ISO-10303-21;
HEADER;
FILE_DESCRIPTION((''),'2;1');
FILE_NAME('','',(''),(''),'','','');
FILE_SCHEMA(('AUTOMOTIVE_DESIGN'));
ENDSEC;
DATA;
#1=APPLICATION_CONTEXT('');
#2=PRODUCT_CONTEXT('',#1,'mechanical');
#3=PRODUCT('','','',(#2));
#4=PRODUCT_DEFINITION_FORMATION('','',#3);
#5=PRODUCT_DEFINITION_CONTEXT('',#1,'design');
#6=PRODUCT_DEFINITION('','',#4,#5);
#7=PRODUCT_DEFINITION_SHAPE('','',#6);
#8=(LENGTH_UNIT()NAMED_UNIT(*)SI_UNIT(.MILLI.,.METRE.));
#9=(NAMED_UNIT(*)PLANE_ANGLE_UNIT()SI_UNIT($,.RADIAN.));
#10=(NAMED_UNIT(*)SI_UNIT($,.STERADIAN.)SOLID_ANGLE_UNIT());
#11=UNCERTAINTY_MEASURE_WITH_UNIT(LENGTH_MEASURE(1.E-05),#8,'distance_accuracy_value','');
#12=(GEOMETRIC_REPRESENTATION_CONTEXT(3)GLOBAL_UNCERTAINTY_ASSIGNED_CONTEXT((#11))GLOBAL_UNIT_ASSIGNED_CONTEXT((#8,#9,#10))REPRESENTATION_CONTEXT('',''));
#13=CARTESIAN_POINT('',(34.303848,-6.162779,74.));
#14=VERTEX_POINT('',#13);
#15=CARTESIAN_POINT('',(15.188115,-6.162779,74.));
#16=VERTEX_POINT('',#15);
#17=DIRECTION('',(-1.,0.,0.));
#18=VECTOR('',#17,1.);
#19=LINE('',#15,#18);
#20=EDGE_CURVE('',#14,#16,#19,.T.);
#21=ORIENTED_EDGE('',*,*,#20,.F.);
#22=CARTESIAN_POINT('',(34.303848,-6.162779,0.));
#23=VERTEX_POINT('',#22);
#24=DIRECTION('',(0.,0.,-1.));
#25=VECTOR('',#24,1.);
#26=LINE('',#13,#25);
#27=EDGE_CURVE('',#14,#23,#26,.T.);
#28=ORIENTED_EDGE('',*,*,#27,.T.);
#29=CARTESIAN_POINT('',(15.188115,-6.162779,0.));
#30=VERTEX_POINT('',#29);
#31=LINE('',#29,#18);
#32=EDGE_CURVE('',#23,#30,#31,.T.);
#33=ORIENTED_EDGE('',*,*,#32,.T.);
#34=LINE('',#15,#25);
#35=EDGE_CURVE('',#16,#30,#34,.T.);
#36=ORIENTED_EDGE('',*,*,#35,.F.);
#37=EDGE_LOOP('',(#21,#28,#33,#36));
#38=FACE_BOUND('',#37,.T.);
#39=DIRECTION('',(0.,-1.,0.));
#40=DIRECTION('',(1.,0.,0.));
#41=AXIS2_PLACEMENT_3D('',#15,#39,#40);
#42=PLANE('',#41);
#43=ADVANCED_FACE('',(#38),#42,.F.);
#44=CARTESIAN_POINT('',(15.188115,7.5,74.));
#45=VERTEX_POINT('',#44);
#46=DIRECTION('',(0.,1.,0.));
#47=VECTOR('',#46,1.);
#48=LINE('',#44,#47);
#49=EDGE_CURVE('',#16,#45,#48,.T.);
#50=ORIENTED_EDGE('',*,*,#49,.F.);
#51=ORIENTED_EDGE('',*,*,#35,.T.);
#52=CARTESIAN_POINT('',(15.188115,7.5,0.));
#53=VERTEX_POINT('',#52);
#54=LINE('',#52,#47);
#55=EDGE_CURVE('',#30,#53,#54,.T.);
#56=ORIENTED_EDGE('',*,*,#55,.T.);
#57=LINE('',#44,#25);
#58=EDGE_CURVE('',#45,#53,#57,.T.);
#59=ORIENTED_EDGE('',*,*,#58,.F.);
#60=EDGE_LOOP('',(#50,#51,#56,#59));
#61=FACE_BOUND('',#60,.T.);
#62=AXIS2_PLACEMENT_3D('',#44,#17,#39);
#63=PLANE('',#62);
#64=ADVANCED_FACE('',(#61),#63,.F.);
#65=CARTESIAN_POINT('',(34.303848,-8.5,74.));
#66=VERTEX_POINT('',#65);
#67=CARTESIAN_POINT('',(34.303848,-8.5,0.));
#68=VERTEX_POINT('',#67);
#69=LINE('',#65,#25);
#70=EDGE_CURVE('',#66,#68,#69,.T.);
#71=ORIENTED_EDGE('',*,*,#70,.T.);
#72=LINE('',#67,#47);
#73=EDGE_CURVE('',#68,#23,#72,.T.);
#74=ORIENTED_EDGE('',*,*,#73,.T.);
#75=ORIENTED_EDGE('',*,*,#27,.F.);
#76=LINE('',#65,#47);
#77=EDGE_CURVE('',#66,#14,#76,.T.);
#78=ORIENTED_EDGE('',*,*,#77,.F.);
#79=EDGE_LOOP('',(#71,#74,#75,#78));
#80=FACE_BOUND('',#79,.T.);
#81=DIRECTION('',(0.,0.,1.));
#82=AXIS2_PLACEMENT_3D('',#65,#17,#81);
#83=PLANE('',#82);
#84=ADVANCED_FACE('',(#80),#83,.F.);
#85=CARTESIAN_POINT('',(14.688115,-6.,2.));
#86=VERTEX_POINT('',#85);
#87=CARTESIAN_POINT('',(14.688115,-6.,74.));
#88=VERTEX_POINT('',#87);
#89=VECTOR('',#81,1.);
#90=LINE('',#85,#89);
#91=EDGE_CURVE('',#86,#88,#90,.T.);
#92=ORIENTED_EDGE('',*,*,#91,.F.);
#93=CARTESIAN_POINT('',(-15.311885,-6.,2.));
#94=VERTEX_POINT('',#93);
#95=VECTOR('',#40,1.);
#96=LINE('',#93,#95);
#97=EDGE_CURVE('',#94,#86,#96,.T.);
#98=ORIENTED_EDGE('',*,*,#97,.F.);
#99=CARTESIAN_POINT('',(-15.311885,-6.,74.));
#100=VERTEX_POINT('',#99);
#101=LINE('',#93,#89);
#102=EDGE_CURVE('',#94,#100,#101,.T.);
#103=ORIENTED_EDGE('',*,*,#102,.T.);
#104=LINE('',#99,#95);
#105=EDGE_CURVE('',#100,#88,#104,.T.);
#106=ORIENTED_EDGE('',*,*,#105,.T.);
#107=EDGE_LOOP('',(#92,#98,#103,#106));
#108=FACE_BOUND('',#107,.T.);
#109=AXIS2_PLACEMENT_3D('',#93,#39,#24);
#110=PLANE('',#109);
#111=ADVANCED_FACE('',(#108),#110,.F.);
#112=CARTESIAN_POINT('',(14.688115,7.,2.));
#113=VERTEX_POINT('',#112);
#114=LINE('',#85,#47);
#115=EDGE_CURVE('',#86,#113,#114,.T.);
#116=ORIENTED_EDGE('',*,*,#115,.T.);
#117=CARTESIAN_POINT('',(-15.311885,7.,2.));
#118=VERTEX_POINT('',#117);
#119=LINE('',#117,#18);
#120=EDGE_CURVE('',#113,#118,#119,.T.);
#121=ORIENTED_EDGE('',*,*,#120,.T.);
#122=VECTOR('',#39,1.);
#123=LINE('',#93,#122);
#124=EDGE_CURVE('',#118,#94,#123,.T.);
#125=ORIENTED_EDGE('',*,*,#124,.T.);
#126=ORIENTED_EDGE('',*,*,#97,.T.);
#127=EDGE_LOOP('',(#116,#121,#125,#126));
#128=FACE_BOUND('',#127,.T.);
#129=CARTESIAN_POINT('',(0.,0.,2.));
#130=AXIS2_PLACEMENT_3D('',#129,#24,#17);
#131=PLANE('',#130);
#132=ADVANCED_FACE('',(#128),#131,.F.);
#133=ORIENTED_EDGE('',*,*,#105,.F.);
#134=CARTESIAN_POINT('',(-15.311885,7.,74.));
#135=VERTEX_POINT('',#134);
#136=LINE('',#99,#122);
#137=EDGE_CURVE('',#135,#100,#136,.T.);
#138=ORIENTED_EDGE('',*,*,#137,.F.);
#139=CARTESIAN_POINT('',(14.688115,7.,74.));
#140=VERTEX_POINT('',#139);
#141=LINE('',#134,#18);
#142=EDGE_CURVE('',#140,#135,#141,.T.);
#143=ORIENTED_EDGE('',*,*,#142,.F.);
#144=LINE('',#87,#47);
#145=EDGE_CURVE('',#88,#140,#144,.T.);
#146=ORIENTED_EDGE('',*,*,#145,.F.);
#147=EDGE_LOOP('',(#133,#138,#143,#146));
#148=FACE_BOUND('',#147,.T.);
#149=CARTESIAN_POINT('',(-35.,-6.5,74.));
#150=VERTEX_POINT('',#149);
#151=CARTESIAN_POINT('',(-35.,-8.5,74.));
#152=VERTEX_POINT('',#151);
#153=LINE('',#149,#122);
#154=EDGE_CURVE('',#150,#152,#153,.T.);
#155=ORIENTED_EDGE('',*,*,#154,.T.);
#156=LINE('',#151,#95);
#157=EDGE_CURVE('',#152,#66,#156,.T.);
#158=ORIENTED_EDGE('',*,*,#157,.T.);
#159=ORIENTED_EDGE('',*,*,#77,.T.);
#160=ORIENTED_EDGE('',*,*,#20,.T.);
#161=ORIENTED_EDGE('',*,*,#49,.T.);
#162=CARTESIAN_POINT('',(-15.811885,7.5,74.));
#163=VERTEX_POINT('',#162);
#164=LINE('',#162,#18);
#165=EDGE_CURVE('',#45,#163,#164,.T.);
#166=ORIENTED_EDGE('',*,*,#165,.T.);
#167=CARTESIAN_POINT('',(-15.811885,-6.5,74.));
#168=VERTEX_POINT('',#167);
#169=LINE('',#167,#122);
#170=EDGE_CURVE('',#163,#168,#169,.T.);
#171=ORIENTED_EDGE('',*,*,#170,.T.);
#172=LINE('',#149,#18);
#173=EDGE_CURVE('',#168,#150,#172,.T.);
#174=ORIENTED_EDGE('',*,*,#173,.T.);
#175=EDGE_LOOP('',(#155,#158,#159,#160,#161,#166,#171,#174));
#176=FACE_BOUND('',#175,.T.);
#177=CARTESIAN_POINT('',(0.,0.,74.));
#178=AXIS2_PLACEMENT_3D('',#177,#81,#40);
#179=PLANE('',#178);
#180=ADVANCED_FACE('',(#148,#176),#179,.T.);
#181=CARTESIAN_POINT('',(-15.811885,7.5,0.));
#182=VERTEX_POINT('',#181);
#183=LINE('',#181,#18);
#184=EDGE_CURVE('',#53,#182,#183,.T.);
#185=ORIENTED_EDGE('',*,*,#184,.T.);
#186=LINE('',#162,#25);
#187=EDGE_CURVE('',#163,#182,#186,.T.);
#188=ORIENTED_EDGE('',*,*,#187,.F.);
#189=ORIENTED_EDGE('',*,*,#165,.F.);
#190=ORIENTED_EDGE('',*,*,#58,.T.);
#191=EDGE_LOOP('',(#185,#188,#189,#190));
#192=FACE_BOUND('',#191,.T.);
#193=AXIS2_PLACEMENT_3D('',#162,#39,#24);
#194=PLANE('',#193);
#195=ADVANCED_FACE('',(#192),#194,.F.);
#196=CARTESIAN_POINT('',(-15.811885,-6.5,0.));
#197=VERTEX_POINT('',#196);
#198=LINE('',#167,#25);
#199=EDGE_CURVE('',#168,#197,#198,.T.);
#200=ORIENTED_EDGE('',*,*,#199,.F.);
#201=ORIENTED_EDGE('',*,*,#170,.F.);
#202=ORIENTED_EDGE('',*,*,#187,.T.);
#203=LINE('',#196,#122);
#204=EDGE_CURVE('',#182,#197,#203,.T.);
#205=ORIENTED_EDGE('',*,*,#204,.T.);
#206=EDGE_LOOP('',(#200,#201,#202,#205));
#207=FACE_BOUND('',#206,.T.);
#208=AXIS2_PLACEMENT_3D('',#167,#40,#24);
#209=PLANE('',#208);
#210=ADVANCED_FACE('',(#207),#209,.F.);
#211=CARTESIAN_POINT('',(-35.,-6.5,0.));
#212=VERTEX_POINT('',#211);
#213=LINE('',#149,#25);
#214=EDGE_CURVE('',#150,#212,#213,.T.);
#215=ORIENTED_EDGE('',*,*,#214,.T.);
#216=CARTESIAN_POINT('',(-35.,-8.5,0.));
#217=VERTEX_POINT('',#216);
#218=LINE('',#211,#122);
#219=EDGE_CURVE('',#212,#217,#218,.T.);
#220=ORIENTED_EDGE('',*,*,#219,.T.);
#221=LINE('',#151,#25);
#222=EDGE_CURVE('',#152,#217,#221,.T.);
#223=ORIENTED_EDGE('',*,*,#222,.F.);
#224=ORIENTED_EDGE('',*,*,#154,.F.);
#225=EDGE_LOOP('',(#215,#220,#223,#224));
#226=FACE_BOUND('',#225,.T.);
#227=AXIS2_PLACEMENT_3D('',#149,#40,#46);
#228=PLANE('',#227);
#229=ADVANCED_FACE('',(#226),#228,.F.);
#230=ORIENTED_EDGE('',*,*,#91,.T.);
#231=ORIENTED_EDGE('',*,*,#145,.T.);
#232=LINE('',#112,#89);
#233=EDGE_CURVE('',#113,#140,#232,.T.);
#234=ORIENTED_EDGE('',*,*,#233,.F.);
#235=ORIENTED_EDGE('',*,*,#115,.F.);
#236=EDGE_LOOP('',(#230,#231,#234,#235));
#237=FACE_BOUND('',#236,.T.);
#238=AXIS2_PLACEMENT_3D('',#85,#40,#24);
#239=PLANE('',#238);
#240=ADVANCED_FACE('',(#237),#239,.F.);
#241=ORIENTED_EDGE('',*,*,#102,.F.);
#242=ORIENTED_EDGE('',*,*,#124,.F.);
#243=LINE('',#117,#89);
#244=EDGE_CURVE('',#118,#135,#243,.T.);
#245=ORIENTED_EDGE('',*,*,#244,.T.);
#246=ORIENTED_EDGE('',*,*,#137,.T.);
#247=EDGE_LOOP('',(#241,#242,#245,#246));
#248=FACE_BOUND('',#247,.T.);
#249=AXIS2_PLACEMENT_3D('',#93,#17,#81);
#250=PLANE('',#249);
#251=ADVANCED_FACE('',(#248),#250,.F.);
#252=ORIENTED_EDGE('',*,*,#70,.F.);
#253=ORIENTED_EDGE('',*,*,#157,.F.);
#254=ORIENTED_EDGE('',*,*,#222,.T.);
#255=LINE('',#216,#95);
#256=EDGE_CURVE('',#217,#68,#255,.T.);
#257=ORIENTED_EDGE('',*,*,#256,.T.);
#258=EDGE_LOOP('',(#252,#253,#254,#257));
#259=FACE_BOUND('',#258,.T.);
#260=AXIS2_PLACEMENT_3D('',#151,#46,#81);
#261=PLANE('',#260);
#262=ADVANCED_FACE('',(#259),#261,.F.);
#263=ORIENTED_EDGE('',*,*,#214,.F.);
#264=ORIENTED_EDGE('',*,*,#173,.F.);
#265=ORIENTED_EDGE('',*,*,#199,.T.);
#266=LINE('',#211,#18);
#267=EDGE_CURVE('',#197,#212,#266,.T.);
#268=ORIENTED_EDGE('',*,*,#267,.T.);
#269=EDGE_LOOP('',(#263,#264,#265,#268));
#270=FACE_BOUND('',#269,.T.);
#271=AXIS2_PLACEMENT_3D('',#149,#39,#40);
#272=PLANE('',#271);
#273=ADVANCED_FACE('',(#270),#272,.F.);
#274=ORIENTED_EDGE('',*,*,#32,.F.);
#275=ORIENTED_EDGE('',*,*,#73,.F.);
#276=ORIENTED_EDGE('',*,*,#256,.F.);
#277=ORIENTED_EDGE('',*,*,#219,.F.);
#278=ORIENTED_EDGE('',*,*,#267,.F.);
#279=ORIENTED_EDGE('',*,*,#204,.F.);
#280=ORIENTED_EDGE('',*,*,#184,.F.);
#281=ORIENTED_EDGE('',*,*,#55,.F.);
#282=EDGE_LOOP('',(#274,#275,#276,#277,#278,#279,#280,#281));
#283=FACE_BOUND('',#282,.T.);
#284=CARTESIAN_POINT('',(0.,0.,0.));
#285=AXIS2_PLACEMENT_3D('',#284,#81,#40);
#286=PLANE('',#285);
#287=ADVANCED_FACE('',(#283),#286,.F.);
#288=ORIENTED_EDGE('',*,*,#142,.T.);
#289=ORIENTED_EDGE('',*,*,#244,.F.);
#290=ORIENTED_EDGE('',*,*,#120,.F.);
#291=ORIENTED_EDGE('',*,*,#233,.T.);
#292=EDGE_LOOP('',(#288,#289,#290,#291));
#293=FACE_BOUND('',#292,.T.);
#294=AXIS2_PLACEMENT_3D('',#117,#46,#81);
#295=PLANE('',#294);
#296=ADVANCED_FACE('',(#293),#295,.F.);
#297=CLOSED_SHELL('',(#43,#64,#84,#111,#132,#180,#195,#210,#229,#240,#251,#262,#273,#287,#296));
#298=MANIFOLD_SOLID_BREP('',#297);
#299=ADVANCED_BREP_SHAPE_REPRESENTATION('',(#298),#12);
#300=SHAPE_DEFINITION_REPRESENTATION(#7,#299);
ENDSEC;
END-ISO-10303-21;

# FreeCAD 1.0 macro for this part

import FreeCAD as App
import Part
import Sketcher
from FreeCAD import Vector


def add_polygon(sketch, points):
    """Adds a closed chain of lines whose ends are joined by coincident constraints."""
    first, n = sketch.GeometryCount, len(points)
    for a, b in zip(points, points[1:] + points[:1]):
        sketch.addGeometry(Part.LineSegment(App.Vector(*a, 0), App.Vector(*b, 0)), False)
    for i in range(n):
        sketch.addConstraint(Sketcher.Constraint("Coincident", first + i, 2, first + (i + 1) % n, 1))

doc = App.newDocument("Part")
body = doc.addObject("PartDesign::Body", "Body")

# Sketch on XY plane
sketch1 = body.newObject("Sketcher::SketchObject", "Sketch")
sketch1.AttachmentSupport = (doc.getObject("XY_Plane"), [""])
sketch1.MapMode = "FlatFace"
add_polygon(sketch1, [(-35, -6.5), (-35, -8.5), (34.303848, -8.5), (34.303848, -6.162779), (15.188115, -6.162779), (15.188115, 7.5), (-15.811885, 7.5), (-15.811885, -6.5)])  # lines 0-7
sketch1.addConstraint([
    Sketcher.Constraint("Vertical", 0),
    Sketcher.Constraint("Horizontal", 1),
    Sketcher.Constraint("Vertical", 2),
    Sketcher.Constraint("Horizontal", 3),
    Sketcher.Constraint("Vertical", 4),
    Sketcher.Constraint("Horizontal", 5),
    Sketcher.Constraint("Vertical", 6),
    Sketcher.Constraint("Horizontal", 7),
    Sketcher.Constraint("DistanceX", 5, 2, 5, 1, 31.0),
    Sketcher.Constraint("DistanceY", 0, 2, 0, 1, 2.0),
    Sketcher.Constraint("DistanceY", 6, 2, 6, 1, 14.0),
    Sketcher.Constraint("DistanceX", 0, 2, -1, 1, 35.0),
    Sketcher.Constraint("DistanceY", 0, 2, -1, 1, 8.5),
    Sketcher.Constraint("DistanceY", 2, 1, 2, 2, 2.337221),
    Sketcher.Constraint("DistanceX", 1, 1, 1, 2, 69.303848),
    Sketcher.Constraint("DistanceX", 3, 2, 3, 1, 19.115733),
])
pad1 = body.newObject("PartDesign::Pad", "Pad")
pad1.Profile = sketch1
pad1.Length = 74

# Sketch on XY plane
sketch2 = body.newObject("Sketcher::SketchObject", "Sketch001")
sketch2.AttachmentSupport = (doc.getObject("XY_Plane"), [""])
sketch2.MapMode = "FlatFace"
sketch2.AttachmentOffset = App.Placement(Vector(0, 0, 74), App.Rotation())
add_polygon(sketch2, [(-15.311885, 7), (-15.311885, -6), (14.688115, -6), (14.688115, 7)])  # lines 0-3
sketch2.addConstraint([
    Sketcher.Constraint("Vertical", 0),
    Sketcher.Constraint("Horizontal", 1),
    Sketcher.Constraint("Vertical", 2),
    Sketcher.Constraint("Horizontal", 3),
    Sketcher.Constraint("DistanceX", 1, 1, 1, 2, 30.0),
    Sketcher.Constraint("DistanceY", 0, 2, 0, 1, 13.0),
    Sketcher.Constraint("DistanceY", 0, 2, -1, 1, 6.0),
    Sketcher.Constraint("DistanceX", 0, 2, -1, 1, 15.311885),
])
pocket1 = body.newObject("PartDesign::Pocket", "Pocket")
pocket1.Profile = sketch2
pocket1.Length = 72

doc.recompute()
